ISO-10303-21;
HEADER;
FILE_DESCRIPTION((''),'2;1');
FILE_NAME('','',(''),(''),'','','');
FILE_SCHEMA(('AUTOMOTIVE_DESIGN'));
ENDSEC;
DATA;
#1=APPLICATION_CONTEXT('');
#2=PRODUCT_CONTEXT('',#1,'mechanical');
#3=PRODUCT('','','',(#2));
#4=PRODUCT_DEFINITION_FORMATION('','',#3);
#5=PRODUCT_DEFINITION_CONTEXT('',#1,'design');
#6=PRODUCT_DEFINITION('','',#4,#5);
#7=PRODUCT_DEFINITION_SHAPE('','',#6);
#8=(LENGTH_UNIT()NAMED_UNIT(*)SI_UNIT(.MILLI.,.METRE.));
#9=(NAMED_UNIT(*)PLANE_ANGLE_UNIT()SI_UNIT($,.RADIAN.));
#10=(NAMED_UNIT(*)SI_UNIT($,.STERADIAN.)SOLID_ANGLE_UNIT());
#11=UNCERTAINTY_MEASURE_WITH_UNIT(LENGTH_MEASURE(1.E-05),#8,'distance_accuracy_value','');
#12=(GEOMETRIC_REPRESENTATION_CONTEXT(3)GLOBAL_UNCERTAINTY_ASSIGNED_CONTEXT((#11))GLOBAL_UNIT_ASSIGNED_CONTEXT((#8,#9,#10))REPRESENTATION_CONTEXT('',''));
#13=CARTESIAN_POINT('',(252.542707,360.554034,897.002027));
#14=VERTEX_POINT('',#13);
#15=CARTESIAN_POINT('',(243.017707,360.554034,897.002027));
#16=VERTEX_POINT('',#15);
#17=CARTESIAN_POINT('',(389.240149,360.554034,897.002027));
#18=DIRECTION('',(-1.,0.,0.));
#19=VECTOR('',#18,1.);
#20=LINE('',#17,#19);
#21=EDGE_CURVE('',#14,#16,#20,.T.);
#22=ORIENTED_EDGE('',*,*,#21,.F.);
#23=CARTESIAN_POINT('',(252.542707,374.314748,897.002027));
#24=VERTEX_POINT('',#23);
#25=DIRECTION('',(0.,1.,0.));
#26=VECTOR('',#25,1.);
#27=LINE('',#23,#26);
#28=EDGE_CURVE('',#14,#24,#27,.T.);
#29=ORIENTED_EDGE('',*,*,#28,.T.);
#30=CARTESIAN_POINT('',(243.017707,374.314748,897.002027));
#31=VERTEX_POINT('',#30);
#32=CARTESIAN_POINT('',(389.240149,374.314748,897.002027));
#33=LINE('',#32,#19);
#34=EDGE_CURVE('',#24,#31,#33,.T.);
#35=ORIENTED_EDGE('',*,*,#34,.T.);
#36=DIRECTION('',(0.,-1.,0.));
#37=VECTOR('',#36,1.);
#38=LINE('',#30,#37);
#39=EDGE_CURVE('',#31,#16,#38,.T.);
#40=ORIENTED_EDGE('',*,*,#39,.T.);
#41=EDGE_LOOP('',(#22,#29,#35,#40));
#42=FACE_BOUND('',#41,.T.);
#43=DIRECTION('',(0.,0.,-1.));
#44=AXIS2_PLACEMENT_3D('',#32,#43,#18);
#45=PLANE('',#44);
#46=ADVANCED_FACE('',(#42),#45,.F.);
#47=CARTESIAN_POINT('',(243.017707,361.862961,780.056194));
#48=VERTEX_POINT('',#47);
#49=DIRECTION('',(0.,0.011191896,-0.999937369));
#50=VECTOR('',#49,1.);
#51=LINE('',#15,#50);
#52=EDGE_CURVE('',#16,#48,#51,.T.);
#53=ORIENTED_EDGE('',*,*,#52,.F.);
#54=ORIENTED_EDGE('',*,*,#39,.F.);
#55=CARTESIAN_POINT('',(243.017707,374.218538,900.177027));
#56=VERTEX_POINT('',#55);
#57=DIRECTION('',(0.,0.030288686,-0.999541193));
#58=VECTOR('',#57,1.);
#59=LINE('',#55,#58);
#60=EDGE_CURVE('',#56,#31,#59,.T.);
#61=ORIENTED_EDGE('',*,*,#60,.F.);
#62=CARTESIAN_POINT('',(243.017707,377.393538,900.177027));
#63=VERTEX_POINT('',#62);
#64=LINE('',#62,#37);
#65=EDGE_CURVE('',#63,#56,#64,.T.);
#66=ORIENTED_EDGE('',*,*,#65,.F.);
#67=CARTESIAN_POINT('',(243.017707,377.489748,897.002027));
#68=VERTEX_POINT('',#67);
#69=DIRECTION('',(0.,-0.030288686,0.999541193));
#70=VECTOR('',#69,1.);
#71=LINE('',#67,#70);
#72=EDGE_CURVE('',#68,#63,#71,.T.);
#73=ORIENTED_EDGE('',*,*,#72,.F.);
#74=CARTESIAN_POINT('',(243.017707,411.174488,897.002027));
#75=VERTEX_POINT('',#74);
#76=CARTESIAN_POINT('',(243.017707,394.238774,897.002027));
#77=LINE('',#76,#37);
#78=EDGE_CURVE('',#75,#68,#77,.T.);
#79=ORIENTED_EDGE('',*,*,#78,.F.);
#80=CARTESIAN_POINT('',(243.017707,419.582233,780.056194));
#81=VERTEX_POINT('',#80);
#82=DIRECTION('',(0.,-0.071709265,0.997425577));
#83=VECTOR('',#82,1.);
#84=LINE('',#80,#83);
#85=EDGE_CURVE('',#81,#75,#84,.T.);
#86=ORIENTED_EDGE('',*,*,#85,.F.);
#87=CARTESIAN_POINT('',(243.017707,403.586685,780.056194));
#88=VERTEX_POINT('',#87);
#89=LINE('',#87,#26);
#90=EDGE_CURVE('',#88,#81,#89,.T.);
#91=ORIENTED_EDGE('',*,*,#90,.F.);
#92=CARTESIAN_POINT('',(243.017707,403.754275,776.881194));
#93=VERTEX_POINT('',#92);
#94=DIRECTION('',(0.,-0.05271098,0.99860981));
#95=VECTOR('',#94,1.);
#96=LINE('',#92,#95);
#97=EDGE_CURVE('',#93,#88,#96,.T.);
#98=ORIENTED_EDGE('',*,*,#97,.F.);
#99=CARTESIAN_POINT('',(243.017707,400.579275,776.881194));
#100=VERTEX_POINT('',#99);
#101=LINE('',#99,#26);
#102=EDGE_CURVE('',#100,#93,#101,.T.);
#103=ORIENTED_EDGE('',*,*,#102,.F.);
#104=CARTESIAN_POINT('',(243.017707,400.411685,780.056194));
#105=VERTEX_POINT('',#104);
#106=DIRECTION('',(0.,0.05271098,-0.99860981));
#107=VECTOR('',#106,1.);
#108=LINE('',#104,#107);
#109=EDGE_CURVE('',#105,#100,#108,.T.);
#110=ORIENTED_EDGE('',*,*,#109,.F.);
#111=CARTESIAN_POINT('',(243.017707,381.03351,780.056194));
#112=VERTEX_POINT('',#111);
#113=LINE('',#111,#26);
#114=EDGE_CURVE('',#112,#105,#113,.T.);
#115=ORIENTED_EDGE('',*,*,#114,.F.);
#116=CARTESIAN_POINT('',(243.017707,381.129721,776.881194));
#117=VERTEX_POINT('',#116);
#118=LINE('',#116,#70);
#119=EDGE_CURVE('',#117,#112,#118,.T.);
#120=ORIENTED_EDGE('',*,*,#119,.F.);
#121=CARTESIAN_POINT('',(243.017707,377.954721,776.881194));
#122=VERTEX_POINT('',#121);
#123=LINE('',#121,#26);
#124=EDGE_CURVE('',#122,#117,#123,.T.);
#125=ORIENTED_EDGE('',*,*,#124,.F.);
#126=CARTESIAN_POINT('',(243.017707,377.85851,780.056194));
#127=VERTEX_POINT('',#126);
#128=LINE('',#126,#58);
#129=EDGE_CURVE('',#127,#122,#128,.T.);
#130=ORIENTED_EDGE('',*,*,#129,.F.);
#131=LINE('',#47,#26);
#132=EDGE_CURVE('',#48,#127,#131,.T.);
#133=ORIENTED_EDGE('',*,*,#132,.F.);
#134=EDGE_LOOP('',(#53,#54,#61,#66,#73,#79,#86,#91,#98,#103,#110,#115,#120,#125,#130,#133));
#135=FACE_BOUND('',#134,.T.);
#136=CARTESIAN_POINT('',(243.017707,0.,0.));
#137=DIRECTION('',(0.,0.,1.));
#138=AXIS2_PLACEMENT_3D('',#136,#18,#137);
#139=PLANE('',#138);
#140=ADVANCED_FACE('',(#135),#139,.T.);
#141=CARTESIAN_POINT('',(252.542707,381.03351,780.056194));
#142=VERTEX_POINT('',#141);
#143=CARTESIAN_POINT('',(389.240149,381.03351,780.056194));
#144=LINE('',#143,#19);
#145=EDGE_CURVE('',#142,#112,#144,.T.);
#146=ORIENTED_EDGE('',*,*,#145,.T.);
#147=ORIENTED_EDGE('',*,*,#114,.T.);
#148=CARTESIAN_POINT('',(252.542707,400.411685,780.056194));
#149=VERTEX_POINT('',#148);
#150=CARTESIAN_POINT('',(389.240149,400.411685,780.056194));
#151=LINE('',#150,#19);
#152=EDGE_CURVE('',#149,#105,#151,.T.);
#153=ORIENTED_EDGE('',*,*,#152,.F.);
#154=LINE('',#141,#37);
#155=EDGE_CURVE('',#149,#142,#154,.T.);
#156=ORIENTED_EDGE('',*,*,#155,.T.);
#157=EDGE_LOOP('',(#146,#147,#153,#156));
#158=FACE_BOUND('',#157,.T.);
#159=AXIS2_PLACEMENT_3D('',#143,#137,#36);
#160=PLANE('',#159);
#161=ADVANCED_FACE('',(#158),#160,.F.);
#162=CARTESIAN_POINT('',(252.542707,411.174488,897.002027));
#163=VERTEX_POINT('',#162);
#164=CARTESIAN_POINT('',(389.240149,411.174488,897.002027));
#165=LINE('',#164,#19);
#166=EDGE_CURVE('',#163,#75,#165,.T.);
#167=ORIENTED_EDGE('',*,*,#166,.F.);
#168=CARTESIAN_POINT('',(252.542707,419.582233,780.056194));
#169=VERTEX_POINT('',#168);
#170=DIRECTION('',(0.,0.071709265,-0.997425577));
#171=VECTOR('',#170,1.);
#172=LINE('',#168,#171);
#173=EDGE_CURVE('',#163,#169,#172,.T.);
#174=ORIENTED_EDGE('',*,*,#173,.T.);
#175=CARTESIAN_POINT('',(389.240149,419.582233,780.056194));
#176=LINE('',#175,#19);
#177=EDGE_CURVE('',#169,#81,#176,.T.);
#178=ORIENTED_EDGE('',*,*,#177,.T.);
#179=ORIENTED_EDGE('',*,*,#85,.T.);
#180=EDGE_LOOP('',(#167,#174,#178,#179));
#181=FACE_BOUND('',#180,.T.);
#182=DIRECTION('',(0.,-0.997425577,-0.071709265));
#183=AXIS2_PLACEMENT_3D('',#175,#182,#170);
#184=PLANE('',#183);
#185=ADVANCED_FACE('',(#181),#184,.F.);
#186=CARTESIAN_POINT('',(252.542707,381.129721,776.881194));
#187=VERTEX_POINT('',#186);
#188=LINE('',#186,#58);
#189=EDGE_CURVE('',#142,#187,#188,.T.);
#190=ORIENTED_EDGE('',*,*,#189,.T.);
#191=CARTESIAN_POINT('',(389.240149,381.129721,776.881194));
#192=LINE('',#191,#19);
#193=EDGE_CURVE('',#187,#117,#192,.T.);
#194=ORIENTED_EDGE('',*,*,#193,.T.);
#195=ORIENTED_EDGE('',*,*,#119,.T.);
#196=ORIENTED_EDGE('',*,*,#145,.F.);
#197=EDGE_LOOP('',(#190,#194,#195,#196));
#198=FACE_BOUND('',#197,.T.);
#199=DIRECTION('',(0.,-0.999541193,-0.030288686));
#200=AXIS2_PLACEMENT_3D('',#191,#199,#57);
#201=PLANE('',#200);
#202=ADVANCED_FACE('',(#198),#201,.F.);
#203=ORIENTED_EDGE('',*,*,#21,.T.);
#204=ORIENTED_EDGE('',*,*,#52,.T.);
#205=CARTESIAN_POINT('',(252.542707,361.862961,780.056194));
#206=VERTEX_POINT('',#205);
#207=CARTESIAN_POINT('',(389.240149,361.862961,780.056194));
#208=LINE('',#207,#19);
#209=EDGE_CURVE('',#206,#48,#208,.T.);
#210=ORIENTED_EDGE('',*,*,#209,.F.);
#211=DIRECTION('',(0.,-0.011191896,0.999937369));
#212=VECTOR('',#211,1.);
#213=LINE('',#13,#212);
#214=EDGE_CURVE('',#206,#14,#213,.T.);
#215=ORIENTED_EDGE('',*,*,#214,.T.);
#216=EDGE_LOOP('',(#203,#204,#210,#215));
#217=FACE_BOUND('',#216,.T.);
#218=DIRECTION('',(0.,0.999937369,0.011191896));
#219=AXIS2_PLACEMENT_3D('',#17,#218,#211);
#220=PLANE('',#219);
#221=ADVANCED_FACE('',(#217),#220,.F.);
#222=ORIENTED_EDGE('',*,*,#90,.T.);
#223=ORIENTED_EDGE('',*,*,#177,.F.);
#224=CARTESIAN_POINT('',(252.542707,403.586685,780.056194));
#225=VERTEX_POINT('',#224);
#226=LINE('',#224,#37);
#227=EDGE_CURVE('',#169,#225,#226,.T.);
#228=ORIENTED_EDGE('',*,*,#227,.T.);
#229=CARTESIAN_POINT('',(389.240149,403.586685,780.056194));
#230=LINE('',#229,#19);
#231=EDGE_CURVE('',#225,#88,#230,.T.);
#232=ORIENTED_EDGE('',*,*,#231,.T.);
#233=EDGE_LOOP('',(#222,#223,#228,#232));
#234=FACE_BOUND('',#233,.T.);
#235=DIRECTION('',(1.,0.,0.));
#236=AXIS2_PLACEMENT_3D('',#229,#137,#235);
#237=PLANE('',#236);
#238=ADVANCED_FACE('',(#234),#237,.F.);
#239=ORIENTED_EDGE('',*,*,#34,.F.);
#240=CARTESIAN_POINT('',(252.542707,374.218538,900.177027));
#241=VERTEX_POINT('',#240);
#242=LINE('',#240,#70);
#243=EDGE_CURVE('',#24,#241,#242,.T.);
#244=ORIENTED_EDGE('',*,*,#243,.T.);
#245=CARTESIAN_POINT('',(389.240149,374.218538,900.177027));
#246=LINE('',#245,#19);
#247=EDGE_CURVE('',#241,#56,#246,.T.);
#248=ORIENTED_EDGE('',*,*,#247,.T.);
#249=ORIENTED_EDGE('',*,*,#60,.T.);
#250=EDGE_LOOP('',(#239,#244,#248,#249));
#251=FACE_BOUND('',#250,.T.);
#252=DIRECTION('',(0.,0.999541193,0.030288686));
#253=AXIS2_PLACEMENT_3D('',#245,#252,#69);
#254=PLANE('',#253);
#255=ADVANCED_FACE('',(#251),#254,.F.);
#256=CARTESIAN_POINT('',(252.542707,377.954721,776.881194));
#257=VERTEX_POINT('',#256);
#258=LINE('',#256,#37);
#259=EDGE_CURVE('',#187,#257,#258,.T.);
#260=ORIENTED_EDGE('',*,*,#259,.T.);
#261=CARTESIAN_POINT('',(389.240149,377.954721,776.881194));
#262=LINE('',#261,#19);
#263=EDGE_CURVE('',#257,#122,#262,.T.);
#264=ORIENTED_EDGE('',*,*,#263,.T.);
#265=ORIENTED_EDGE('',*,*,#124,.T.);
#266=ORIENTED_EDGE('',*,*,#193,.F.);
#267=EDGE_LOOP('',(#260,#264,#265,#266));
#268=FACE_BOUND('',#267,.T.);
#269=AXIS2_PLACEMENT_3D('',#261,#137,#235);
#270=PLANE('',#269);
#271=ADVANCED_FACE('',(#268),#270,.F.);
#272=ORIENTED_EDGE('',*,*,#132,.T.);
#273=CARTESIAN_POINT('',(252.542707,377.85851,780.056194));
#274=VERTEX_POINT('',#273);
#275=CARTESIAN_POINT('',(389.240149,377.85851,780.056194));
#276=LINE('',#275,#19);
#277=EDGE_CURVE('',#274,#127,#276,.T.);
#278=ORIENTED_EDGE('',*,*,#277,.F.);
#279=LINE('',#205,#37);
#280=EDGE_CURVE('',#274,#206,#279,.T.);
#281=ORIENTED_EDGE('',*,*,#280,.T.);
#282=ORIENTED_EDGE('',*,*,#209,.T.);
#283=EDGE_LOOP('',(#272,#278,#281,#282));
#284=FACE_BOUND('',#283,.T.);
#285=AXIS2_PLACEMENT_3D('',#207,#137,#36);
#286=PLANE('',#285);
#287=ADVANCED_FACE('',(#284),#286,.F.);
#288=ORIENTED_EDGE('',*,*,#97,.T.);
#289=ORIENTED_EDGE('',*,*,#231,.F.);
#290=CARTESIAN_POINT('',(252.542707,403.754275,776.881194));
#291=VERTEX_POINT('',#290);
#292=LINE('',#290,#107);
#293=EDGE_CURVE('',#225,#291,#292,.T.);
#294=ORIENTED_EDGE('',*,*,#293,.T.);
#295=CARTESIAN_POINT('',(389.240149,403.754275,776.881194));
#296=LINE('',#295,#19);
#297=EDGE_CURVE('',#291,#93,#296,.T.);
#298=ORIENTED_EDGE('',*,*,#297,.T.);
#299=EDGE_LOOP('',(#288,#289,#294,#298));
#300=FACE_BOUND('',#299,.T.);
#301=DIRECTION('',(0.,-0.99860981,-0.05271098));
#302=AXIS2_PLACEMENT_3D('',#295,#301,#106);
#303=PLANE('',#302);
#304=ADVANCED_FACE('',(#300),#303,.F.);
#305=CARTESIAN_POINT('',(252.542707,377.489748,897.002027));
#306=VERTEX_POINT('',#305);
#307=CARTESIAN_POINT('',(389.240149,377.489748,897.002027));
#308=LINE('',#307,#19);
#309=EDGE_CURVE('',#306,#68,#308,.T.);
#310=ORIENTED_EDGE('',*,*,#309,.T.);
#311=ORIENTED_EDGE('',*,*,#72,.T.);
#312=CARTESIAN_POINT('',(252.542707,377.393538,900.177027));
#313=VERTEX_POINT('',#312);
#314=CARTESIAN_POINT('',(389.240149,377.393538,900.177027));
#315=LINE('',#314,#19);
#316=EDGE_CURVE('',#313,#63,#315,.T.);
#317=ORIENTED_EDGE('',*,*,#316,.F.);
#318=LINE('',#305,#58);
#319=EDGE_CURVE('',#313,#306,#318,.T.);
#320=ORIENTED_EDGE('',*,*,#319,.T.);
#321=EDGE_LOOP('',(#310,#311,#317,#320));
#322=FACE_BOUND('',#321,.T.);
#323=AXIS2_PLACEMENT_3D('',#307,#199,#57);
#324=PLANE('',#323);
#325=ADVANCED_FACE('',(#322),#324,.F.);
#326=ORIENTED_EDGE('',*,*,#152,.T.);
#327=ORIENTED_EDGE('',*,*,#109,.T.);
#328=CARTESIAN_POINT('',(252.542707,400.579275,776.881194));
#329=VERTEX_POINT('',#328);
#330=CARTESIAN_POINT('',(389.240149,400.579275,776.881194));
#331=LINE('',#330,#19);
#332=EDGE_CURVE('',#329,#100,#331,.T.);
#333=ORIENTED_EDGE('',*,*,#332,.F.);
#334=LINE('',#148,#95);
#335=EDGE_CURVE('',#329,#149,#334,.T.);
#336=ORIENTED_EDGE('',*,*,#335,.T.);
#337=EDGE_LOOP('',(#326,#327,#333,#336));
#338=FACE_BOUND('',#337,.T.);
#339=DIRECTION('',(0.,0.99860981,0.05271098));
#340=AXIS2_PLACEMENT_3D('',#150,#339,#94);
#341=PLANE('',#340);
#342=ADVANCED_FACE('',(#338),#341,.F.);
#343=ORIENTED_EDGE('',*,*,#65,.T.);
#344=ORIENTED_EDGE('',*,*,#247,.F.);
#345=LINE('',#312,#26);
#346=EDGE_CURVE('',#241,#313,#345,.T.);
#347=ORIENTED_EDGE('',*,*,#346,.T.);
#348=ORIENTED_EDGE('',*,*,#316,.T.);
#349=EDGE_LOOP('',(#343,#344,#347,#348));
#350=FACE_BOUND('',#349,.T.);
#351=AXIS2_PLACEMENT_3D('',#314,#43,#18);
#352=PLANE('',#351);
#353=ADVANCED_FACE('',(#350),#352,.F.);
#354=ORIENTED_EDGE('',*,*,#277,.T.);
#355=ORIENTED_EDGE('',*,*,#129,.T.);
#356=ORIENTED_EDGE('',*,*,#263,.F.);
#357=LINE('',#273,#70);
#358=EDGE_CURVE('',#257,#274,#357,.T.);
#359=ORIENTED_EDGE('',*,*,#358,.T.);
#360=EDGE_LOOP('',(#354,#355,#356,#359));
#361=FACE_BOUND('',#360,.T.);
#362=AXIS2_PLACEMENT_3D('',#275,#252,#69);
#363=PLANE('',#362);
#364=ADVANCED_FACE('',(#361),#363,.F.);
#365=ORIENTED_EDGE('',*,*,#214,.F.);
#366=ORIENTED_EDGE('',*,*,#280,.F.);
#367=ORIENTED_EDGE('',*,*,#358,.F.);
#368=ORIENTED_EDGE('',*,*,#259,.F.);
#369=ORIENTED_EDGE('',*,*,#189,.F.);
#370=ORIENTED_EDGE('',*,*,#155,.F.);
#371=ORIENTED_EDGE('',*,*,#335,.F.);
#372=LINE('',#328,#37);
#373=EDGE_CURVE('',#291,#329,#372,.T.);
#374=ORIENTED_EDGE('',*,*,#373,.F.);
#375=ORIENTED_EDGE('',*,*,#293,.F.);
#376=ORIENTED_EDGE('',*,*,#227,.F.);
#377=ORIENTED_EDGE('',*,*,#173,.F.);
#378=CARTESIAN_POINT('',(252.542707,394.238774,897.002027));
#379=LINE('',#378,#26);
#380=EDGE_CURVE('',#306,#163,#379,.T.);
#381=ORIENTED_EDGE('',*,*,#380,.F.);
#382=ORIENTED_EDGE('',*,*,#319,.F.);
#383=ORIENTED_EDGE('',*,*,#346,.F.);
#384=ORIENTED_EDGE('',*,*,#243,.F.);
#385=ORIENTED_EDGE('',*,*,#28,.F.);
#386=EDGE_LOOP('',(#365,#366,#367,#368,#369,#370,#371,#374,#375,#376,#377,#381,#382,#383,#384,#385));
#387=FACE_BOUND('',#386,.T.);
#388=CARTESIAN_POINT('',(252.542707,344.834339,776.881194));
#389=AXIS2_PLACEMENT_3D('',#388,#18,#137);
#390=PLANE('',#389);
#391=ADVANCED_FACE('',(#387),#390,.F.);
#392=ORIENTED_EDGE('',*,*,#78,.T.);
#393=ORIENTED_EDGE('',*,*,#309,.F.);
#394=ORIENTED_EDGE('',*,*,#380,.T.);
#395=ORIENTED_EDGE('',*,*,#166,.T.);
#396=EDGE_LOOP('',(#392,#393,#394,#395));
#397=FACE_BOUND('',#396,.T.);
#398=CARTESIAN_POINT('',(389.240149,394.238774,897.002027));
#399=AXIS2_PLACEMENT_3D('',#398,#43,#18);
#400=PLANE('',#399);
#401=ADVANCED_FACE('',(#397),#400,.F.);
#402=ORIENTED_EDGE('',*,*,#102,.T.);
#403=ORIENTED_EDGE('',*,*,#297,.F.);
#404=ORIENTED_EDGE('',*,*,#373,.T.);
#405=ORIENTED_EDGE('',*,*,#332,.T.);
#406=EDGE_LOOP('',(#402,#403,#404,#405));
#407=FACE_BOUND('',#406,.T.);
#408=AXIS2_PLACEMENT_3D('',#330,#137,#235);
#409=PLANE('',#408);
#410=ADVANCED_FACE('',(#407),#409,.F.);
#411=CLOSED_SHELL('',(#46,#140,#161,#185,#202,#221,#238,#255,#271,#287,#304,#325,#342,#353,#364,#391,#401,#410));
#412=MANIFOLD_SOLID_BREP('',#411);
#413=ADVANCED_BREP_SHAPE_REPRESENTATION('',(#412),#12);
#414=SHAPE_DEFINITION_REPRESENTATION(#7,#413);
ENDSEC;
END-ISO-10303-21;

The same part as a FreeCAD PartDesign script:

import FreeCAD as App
import Part
import Sketcher

V = App.Vector
Q = App.Units.Quantity

doc = App.newDocument("Part")
body = doc.addObject("PartDesign::Body", "Body")

# Sketch on YZ plane
sketch1 = body.newObject("Sketcher::SketchObject", "Sketch")
sketch1.AttachmentSupport = (doc.getObject("YZ_Plane"), [""])
sketch1.MapMode = "FlatFace"
sketch1.AttachmentOffset = App.Placement(V(0, 0, 243.017707), App.Rotation())
sketch1.addGeometry([
    Part.LineSegment(V(400.4, 780.1, 0), V(400.6, 776.9, 0)),  # 0
    Part.LineSegment(V(400.6, 776.9, 0), V(403.8, 776.9, 0)),  # 1
    Part.LineSegment(V(403.8, 776.9, 0), V(403.6, 780.1, 0)),  # 2
    Part.LineSegment(V(403.6, 780.1, 0), V(419.6, 780.1, 0)),  # 3
    Part.LineSegment(V(419.6, 780.1, 0), V(411.2, 897, 0)),  # 4
    Part.LineSegment(V(411.2, 897, 0), V(377.5, 897, 0)),  # 5
    Part.LineSegment(V(377.5, 897, 0), V(377.4, 900.2, 0)),  # 6
    Part.LineSegment(V(377.4, 900.2, 0), V(374.2, 900.2, 0)),  # 7
    Part.LineSegment(V(374.2, 900.2, 0), V(374.3, 897, 0)),  # 8
    Part.LineSegment(V(374.3, 897, 0), V(360.6, 897, 0)),  # 9
    Part.LineSegment(V(360.6, 897, 0), V(361.9, 780.1, 0)),  # 10
    Part.LineSegment(V(361.9, 780.1, 0), V(377.9, 780.1, 0)),  # 11
    Part.LineSegment(V(377.9, 780.1, 0), V(378, 776.9, 0)),  # 12
    Part.LineSegment(V(378, 776.9, 0), V(381.1, 776.9, 0)),  # 13
    Part.LineSegment(V(381.1, 776.9, 0), V(381, 780.1, 0)),  # 14
    Part.LineSegment(V(381, 780.1, 0), V(400.4, 780.1, 0)),  # 15
], False)
sketch1.addConstraint([
    Sketcher.Constraint("Coincident", 0, 2, 1, 1),
    Sketcher.Constraint("Coincident", 1, 2, 2, 1),
    Sketcher.Constraint("Coincident", 2, 2, 3, 1),
    Sketcher.Constraint("Coincident", 3, 2, 4, 1),
    Sketcher.Constraint("Coincident", 4, 2, 5, 1),
    Sketcher.Constraint("Coincident", 5, 2, 6, 1),
    Sketcher.Constraint("Coincident", 6, 2, 7, 1),
    Sketcher.Constraint("Coincident", 7, 2, 8, 1),
    Sketcher.Constraint("Coincident", 8, 2, 9, 1),
    Sketcher.Constraint("Coincident", 9, 2, 10, 1),
    Sketcher.Constraint("Coincident", 10, 2, 11, 1),
    Sketcher.Constraint("Coincident", 11, 2, 12, 1),
    Sketcher.Constraint("Coincident", 12, 2, 13, 1),
    Sketcher.Constraint("Coincident", 13, 2, 14, 1),
    Sketcher.Constraint("Coincident", 14, 2, 15, 1),
    Sketcher.Constraint("Coincident", 15, 2, 0, 1),
    Sketcher.Constraint("Horizontal", 1),
    Sketcher.Constraint("Horizontal", 3),
    Sketcher.Constraint("Horizontal", 5),
    Sketcher.Constraint("Horizontal", 7),
    Sketcher.Constraint("Horizontal", 9),
    Sketcher.Constraint("Horizontal", 11),
    Sketcher.Constraint("Horizontal", 13),
    Sketcher.Constraint("Horizontal", 15),
    Sketcher.Constraint("Parallel", 0, 2),
    Sketcher.Constraint("Parallel", 6, 8),
    Sketcher.Constraint("Parallel", 8, 12),
    Sketcher.Constraint("Parallel", 12, 14),
    Sketcher.Constraint("Horizontal", 5, 2, 8, 2),
    Sketcher.Constraint("Horizontal", 3, 2, 10, 2),
    Sketcher.Constraint("Horizontal", 1, 2, 12, 2),
    Sketcher.Constraint("Horizontal", 11, 2, 14, 2),
    Sketcher.Constraint("Equal", 1, 7),
    Sketcher.Constraint("Equal", 3, 11),
    Sketcher.Constraint("Equal", 7, 13),
    Sketcher.Constraint("Equal", 8, 12),
    Sketcher.Constraint("DistanceX", 1, 1, 1, 2, Q("0.125 in")),
    Sketcher.Constraint("DistanceY", 1, 2, 2, 2, Q("0.125 in")),
    Sketcher.Constraint("DistanceX", 3, 1, 3, 2, Q("15.995549 mm")),
    Sketcher.Constraint("DistanceX", 5, 2, 5, 1, Q("33.68474 mm")),
    Sketcher.Constraint("Distance", 0, Q("3.17942 mm")),
    Sketcher.Constraint("Distance", 4, Q("117.247679 mm")),
    Sketcher.Constraint("Distance", 10, Q("116.953158 mm")),
    Sketcher.Constraint("DistanceX", 9, 2, 9, 1, Q("13.760715 mm")),
    Sketcher.Constraint("DistanceX", 15, 1, 15, 2, Q("19.378175 mm")),
    Sketcher.Constraint("DistanceX", -1, 1, 4, 2, Q("411.174488 mm")),
    Sketcher.Constraint("DistanceX", -1, 1, 12, 2, Q("377.954721 mm")),
    Sketcher.Constraint("DistanceY", -1, 1, 0, 2, Q("776.881194 mm")),
])
pad1 = body.newObject("PartDesign::Pad", "Pad")
pad1.Profile = sketch1
pad1.Length = Q("0.375 in")

doc.recompute()
